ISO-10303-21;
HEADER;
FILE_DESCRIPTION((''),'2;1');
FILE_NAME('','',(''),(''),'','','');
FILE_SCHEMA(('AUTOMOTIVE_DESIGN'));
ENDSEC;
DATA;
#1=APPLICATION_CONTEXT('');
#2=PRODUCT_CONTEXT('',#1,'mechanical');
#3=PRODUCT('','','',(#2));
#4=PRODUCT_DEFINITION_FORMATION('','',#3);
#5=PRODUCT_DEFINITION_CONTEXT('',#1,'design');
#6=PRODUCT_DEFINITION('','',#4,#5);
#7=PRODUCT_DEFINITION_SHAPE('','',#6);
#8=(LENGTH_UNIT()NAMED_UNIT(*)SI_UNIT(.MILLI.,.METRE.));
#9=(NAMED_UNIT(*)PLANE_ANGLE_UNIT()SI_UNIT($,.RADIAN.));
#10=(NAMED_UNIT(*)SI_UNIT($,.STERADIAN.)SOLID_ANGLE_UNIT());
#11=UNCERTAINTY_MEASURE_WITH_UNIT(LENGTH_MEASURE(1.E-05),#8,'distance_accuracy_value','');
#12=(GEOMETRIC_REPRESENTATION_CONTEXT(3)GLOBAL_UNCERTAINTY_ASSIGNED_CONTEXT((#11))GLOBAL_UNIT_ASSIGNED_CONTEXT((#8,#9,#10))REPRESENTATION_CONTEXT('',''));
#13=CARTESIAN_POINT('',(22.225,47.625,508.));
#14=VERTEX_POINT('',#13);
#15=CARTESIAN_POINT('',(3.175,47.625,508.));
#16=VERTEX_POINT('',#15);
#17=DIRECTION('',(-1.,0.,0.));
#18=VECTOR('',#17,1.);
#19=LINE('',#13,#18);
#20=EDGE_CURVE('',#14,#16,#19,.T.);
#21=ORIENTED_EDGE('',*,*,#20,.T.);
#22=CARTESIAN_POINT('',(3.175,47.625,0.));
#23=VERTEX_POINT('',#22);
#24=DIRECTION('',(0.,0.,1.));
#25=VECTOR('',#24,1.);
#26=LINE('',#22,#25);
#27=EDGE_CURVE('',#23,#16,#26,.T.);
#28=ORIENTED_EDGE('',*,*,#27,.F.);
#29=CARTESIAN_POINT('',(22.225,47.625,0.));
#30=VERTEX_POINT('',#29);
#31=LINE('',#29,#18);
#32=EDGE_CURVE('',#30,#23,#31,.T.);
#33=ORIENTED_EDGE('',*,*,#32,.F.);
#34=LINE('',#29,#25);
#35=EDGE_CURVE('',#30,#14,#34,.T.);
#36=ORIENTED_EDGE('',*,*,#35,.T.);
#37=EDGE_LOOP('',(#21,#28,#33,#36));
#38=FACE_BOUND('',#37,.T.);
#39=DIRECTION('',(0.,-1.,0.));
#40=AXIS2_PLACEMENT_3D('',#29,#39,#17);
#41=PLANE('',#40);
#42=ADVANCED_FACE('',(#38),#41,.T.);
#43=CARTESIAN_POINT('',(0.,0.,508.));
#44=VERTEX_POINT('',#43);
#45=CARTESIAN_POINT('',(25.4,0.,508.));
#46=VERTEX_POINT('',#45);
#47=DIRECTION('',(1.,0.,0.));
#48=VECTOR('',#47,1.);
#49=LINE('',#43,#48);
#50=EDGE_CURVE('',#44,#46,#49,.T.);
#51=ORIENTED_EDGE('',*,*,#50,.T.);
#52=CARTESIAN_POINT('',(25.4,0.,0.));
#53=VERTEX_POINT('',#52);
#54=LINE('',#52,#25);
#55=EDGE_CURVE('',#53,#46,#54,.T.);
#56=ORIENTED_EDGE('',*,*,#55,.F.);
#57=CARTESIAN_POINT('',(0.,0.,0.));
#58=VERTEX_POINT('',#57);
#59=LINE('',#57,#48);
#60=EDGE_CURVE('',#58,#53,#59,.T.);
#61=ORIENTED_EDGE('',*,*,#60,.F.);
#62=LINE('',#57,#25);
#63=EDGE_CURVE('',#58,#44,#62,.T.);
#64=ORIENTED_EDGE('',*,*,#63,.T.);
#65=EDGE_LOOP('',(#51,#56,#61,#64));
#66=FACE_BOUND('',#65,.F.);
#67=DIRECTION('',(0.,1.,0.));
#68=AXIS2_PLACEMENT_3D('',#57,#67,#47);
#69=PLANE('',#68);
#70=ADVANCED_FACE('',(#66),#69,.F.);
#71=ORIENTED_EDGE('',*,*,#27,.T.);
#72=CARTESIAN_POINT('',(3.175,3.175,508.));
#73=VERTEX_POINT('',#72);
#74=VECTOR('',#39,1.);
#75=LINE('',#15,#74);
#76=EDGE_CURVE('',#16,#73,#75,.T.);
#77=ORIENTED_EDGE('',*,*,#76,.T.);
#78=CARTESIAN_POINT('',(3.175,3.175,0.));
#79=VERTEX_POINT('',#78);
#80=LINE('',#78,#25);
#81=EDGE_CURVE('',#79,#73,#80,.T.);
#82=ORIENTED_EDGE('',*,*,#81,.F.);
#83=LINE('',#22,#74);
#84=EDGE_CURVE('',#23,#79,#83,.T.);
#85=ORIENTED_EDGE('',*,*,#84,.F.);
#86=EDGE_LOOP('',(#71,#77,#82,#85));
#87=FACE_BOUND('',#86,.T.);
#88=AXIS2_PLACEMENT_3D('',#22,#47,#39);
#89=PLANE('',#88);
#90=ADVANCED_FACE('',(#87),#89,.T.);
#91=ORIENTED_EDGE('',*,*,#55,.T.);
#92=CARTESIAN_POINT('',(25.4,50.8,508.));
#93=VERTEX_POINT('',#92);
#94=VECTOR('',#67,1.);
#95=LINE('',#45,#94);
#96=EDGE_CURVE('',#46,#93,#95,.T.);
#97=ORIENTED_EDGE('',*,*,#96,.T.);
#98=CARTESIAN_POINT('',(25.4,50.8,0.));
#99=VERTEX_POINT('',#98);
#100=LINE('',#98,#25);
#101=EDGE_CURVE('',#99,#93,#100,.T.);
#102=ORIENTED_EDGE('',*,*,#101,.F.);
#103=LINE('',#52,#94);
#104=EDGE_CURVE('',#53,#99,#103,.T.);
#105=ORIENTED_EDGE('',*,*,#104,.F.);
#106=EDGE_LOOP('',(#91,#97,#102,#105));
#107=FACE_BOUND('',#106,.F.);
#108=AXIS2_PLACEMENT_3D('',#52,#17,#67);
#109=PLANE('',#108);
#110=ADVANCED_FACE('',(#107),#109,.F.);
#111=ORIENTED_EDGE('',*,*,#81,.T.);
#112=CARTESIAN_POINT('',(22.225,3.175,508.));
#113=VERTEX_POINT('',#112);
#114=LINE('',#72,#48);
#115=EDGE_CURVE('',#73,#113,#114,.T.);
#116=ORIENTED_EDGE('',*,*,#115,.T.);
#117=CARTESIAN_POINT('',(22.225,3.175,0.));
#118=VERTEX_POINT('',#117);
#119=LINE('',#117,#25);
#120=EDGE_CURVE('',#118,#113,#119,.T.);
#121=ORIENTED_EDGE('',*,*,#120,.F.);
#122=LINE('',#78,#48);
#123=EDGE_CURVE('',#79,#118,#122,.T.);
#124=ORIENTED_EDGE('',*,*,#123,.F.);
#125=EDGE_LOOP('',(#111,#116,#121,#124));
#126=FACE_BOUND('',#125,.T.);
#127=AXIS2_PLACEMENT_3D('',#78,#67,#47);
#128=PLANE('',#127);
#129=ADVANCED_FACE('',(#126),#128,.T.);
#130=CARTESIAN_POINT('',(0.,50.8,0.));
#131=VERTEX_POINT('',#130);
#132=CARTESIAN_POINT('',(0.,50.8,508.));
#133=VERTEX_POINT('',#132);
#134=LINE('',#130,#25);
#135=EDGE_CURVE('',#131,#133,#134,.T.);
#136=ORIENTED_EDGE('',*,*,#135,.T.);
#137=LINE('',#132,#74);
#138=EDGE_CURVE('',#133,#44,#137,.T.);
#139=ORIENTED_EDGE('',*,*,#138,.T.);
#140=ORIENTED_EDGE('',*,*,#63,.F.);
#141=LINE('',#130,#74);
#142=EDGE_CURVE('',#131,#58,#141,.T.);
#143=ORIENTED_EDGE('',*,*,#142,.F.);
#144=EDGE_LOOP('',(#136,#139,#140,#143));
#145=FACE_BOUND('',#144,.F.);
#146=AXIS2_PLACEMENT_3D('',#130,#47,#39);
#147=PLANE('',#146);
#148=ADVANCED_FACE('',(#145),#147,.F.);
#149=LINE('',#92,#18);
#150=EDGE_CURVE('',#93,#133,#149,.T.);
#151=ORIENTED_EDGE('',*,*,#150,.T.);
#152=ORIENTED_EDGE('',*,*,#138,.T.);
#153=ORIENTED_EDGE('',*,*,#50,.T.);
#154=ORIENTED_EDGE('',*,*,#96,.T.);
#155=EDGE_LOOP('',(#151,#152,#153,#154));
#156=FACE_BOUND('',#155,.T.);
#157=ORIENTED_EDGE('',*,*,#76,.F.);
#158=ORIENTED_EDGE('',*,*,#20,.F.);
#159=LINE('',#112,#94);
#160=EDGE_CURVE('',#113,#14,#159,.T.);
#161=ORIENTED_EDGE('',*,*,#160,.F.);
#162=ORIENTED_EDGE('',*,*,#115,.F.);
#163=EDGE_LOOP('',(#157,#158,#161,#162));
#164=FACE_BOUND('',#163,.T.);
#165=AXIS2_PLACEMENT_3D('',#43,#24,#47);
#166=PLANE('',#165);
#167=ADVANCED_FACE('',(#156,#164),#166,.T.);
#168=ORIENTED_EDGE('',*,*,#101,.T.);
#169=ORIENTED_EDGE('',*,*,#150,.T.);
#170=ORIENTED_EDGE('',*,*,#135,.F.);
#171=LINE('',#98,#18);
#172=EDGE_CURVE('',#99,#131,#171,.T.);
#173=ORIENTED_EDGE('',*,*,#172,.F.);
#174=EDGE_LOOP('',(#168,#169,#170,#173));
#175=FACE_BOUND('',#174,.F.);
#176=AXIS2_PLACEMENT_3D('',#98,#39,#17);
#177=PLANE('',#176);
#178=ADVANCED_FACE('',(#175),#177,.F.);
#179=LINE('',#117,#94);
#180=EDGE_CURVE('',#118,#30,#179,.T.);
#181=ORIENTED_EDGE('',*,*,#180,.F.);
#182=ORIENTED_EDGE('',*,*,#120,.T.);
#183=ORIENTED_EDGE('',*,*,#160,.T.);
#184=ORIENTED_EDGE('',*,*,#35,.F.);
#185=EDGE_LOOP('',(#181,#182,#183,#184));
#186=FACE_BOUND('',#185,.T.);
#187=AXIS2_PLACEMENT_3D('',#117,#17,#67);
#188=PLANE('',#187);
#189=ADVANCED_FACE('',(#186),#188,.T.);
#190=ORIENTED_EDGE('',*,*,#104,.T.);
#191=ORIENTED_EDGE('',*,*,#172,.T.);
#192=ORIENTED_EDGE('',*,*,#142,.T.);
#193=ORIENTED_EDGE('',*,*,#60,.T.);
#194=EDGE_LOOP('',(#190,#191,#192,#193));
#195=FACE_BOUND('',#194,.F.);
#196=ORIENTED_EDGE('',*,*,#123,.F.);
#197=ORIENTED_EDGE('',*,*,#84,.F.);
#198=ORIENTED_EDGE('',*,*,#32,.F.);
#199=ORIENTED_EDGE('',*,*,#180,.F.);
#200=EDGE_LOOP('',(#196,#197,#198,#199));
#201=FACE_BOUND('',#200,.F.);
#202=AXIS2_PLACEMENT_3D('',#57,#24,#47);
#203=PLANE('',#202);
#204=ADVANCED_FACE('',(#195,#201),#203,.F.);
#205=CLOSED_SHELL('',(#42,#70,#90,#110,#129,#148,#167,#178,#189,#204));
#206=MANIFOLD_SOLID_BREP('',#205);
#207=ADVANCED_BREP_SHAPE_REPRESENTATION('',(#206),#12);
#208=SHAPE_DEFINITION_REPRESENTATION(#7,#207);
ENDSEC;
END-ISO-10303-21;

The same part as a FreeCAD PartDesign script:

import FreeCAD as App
import Part
import Sketcher
Q = App.Units.Quantity


def add_polygon(sketch, points):
    """Adds a closed chain of lines whose ends are joined by coincident constraints."""
    first, n = sketch.GeometryCount, len(points)
    for a, b in zip(points, points[1:] + points[:1]):
        sketch.addGeometry(Part.LineSegment(App.Vector(*a, 0), App.Vector(*b, 0)), False)
    for i in range(n):
        sketch.addConstraint(Sketcher.Constraint("Coincident", first + i, 2, first + (i + 1) % n, 1))

doc = App.newDocument("Part")
params = doc.addObject("Spreadsheet::Sheet", "Params")
for row, (alias, value) in enumerate([
    ("sketch1_width", "1 in"),
    ("sketch1_height", "2 in"),
    ("pad1_length", "20 in"),
], start=1):
    params.set(f"A{row}", alias)
    params.set(f"B{row}", "=" + value)
    params.setAlias(f"B{row}", alias)

body = doc.addObject("PartDesign::Body", "Body")

# Sketch on XY plane
sketch1 = body.newObject("Sketcher::SketchObject", "Sketch")
sketch1.AttachmentSupport = (doc.getObject("XY_Plane"), [""])
sketch1.MapMode = "FlatFace"
add_polygon(sketch1, [(0, 50.8), (0, 0), (25.4, 0), (25.4, 50.8)])  # lines 0-3
add_polygon(sketch1, [(22.225, 3.175), (3.175, 3.175), (3.175, 47.625), (22.225, 47.625)])  # lines 4-7
sketch1.addConstraint([
    Sketcher.Constraint("Vertical", 0),
    Sketcher.Constraint("Horizontal", 1),
    Sketcher.Constraint("Vertical", 2),
    Sketcher.Constraint("Horizontal", 3),
    Sketcher.Constraint("Horizontal", 4),
    Sketcher.Constraint("Vertical", 5),
    Sketcher.Constraint("Horizontal", 6),
    Sketcher.Constraint("Vertical", 7),
    Sketcher.Constraint("Coincident", 0, 2, -1, 1),
    Sketcher.Constraint("DistanceX", 1, 1, 1, 2, Q("1 in")),
    Sketcher.Constraint("DistanceY", 0, 2, 0, 1, Q("2 in")),
    Sketcher.Constraint("DistanceX", -1, 1, 4, 2, Q("0.125 in")),
    Sketcher.Constraint("DistanceY", -1, 1, 4, 2, Q("0.125 in")),
    Sketcher.Constraint("DistanceY", 5, 2, 3, 2, Q("0.125 in")),
    Sketcher.Constraint("DistanceX", 6, 2, 2, 2, Q("0.125 in")),
])
sketch1.setExpression("Constraints[17]", "Params.sketch1_width")
sketch1.setExpression("Constraints[18]", "Params.sketch1_height")
pad1 = body.newObject("PartDesign::Pad", "Pad")
pad1.Profile = sketch1
pad1.setExpression("Length", "Params.pad1_length")

doc.recompute()
